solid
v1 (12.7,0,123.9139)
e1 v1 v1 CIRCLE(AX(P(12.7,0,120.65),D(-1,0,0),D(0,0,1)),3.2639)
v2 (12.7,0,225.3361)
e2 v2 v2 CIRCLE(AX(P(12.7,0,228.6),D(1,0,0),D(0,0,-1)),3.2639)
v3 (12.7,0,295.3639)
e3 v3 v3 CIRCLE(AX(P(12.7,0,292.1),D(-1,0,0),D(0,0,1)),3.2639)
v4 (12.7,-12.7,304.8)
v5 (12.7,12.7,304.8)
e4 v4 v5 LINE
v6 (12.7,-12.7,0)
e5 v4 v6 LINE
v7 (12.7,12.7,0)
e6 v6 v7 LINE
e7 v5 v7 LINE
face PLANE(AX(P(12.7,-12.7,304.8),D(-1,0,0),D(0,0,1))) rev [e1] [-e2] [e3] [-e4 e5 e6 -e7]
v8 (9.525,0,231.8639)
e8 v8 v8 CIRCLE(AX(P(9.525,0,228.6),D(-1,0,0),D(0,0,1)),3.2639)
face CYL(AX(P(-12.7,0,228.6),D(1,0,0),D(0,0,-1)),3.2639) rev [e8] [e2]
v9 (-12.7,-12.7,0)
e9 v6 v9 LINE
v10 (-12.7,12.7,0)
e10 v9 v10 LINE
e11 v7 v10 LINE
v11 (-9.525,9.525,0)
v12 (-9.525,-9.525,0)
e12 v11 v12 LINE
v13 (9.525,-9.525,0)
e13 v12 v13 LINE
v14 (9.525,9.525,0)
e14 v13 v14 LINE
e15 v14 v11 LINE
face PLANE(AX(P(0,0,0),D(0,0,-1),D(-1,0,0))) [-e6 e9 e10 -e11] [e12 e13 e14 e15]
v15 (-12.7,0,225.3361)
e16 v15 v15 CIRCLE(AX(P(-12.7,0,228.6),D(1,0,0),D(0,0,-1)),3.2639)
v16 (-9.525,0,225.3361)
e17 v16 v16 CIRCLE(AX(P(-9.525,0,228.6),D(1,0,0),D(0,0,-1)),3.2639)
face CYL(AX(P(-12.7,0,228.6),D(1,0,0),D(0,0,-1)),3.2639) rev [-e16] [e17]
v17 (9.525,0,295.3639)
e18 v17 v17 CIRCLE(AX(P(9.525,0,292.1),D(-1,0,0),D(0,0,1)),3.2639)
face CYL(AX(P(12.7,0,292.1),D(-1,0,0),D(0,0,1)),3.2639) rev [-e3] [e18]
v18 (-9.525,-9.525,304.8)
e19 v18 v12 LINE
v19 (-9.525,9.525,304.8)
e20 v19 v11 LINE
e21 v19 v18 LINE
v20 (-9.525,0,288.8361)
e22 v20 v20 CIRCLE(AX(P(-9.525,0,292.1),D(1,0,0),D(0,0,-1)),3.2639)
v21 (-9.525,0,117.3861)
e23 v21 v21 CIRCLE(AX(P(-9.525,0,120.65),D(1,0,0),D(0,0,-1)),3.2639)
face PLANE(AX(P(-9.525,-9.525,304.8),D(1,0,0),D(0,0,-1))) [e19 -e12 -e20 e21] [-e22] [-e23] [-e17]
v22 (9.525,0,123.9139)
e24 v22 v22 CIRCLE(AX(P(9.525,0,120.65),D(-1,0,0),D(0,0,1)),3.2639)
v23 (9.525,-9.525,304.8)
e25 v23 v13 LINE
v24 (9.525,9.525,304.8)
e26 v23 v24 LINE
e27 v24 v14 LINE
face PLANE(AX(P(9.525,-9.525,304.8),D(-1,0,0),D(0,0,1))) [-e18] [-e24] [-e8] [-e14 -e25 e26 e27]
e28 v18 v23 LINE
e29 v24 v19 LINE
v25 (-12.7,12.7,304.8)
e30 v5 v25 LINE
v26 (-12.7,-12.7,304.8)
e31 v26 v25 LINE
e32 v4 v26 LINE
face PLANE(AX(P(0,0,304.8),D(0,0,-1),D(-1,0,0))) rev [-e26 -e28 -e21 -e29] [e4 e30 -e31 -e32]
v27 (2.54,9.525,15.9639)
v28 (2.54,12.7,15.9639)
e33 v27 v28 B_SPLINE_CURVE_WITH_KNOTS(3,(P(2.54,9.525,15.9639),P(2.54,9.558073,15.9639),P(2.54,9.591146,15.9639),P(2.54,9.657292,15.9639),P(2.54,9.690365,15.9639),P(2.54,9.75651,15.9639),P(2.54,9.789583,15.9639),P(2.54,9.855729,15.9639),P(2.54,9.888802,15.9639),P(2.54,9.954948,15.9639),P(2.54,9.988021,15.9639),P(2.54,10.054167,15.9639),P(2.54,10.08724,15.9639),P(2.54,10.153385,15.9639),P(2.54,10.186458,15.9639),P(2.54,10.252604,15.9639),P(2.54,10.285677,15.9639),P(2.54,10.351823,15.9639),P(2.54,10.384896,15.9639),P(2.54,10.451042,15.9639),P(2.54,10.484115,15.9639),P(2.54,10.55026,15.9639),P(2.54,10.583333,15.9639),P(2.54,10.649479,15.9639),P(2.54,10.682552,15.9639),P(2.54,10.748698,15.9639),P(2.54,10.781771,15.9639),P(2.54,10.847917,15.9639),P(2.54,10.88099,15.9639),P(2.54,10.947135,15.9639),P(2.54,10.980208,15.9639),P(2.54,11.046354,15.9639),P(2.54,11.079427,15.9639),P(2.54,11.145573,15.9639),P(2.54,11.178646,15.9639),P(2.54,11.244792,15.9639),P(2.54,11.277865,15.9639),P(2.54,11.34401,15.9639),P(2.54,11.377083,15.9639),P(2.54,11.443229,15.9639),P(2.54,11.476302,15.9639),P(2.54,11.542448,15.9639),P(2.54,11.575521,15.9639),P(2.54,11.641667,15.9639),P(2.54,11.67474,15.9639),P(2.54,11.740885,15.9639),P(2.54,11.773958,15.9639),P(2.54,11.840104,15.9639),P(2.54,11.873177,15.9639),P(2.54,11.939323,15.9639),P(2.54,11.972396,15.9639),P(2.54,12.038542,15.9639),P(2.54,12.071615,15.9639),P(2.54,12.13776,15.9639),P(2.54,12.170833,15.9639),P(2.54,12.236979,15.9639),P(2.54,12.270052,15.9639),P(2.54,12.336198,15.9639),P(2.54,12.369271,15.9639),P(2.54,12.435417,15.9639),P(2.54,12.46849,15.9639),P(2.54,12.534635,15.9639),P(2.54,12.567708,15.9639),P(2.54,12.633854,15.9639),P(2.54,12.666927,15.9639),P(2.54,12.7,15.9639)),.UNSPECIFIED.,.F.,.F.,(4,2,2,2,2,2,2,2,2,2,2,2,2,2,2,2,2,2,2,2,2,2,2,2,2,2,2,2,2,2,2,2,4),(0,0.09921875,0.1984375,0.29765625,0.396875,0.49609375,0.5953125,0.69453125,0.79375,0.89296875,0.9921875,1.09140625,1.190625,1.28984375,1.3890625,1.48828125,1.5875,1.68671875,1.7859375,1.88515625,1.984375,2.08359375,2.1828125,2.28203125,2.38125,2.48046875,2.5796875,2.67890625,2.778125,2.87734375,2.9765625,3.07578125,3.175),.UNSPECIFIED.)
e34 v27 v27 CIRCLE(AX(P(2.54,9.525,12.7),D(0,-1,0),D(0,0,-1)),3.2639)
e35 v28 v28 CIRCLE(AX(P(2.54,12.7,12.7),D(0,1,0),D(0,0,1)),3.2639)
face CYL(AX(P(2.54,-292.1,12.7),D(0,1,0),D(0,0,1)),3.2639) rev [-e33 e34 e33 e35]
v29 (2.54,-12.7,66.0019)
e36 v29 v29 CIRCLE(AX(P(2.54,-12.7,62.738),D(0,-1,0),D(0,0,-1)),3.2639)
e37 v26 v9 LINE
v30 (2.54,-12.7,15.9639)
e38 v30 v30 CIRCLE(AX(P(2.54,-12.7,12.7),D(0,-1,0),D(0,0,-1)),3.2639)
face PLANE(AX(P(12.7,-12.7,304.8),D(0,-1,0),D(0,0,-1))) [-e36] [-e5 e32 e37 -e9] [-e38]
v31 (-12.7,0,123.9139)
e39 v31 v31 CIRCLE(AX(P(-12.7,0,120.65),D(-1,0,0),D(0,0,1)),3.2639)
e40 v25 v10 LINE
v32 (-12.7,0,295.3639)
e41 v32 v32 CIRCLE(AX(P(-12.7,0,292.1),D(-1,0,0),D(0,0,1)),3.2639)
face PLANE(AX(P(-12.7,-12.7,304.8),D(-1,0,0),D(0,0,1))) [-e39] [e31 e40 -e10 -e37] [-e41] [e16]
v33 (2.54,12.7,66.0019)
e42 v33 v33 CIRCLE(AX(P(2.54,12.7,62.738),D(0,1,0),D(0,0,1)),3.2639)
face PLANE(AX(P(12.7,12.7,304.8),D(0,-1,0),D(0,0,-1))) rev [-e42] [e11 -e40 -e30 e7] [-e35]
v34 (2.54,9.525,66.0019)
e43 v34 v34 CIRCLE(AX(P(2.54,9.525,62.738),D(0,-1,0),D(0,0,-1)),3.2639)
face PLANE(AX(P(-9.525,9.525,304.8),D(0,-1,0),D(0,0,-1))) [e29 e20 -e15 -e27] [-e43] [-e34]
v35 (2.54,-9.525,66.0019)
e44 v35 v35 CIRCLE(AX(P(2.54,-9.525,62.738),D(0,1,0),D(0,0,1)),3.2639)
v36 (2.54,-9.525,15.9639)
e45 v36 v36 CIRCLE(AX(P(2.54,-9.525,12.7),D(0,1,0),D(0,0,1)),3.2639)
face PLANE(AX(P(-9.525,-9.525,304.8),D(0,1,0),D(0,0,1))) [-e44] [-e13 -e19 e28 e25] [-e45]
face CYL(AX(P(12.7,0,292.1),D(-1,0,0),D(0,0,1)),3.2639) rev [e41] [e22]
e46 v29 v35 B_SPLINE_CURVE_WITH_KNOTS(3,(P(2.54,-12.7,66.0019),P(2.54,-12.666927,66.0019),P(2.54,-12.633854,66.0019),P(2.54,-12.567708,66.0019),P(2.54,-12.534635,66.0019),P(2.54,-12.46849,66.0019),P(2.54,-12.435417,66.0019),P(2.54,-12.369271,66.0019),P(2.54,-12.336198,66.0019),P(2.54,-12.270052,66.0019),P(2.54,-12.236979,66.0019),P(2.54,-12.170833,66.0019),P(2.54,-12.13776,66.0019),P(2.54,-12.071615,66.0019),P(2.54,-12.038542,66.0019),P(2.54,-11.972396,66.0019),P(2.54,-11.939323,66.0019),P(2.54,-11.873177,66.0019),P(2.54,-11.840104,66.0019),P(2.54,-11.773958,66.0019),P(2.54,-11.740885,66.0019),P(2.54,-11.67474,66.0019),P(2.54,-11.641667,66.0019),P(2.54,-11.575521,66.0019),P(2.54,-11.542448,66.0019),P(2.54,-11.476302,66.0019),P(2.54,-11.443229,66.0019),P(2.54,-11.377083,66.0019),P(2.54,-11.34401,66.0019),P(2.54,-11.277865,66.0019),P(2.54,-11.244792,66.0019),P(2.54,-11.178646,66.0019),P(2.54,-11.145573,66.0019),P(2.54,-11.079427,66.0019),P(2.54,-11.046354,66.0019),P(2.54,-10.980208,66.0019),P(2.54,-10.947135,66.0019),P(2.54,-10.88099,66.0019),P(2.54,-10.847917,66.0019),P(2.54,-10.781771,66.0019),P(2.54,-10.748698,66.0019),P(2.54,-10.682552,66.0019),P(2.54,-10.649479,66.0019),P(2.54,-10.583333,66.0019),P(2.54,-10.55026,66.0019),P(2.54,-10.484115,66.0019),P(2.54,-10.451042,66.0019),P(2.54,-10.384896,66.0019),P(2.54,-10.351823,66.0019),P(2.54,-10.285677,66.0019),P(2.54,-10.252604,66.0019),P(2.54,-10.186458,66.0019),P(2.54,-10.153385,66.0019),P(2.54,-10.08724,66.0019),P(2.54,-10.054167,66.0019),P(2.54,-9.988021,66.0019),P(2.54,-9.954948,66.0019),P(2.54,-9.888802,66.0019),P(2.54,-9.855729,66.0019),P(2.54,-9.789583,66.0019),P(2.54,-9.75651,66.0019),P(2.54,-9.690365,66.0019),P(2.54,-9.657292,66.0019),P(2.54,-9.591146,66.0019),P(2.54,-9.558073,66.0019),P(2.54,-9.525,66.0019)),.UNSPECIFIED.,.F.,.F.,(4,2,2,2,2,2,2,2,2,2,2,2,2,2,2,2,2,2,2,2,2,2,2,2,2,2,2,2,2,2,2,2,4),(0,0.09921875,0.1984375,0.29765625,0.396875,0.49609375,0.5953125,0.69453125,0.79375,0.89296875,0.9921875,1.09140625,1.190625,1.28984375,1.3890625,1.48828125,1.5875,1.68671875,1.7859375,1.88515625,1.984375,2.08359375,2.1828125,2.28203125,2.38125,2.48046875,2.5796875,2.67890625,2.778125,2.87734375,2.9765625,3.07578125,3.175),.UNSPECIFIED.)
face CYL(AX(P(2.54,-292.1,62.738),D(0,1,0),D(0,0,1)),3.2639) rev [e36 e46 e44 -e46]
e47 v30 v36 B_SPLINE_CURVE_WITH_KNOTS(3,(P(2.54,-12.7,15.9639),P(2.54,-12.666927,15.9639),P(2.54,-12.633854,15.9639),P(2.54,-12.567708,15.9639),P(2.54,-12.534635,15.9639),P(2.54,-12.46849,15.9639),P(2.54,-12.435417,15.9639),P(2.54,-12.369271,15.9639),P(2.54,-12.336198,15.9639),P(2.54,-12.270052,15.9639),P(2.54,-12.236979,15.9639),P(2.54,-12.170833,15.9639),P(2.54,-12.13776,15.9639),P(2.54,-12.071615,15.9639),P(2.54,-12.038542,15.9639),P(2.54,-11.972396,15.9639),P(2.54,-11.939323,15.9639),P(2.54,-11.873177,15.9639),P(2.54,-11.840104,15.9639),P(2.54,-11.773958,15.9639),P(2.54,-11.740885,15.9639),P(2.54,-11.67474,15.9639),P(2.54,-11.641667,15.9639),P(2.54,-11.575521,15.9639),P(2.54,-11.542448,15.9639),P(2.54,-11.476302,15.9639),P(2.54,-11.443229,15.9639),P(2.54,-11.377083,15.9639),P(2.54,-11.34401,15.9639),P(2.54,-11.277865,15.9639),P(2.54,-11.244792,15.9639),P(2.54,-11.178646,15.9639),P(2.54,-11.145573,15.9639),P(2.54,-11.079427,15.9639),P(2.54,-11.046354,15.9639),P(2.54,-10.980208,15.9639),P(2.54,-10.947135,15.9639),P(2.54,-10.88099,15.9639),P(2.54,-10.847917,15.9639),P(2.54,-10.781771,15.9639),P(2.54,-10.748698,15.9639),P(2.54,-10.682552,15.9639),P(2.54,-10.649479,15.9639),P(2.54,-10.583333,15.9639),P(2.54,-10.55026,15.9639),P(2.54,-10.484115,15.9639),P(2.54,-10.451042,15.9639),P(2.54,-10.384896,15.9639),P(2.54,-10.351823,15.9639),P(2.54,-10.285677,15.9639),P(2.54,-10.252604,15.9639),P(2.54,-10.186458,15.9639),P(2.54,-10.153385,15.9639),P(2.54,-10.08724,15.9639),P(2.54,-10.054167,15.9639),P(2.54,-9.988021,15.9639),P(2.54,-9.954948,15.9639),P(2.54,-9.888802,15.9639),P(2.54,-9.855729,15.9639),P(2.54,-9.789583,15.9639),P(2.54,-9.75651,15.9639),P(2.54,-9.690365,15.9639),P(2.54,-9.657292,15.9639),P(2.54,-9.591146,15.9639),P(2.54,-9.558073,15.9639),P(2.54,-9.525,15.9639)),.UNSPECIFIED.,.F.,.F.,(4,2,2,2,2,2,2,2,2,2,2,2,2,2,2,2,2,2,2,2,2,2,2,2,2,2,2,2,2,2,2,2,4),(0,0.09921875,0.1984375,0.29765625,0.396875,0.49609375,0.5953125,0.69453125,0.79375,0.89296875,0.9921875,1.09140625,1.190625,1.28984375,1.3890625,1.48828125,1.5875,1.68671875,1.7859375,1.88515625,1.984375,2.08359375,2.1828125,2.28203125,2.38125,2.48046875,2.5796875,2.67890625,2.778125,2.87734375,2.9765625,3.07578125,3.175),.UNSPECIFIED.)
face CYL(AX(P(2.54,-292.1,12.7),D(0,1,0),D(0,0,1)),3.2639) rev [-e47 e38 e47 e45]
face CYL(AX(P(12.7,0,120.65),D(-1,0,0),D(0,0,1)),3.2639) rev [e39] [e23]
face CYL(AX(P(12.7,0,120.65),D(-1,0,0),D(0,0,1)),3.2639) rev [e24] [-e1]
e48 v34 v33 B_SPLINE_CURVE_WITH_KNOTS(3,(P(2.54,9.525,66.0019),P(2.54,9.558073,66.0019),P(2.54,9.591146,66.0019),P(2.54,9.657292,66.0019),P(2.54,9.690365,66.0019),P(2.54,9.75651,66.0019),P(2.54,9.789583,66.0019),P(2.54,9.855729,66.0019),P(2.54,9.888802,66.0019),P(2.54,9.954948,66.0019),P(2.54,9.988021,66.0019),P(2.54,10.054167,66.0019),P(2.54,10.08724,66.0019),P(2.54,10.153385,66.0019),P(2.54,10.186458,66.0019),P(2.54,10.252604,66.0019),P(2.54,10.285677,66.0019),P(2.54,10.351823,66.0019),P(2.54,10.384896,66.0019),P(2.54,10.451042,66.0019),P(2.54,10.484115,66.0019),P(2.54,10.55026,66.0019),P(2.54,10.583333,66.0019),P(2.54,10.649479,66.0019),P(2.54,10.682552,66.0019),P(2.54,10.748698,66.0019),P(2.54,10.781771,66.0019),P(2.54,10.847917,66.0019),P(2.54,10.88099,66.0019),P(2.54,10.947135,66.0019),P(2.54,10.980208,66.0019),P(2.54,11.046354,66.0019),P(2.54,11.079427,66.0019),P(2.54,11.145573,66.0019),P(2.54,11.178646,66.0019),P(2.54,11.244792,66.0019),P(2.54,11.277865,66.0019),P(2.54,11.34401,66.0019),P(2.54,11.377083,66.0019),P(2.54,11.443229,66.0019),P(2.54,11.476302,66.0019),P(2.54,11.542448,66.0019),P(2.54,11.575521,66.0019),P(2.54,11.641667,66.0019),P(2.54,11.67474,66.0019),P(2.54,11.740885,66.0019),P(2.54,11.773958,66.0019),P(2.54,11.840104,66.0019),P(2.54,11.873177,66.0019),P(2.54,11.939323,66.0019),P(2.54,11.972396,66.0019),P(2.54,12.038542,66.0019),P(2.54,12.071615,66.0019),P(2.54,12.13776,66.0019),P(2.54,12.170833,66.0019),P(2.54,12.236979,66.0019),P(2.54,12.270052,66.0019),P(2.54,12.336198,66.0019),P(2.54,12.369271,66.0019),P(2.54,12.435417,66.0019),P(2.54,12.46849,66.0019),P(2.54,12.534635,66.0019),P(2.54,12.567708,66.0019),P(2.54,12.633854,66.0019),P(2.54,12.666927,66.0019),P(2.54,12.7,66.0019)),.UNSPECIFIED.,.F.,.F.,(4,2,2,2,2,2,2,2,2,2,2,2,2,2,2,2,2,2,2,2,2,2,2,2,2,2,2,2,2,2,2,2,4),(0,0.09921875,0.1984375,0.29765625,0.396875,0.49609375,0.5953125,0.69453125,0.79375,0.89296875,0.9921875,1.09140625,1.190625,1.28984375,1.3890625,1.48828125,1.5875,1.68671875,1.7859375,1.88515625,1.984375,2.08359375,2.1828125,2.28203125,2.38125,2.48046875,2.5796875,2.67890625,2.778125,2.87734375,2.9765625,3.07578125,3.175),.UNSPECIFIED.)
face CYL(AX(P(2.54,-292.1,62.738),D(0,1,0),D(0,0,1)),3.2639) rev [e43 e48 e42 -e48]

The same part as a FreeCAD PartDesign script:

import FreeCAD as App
import Part
import Sketcher
Q = App.Units.Quantity


def add_polygon(sketch, points):
    """Adds a closed chain of lines whose ends are joined by coincident constraints."""
    first, n = sketch.GeometryCount, len(points)
    for a, b in zip(points, points[1:] + points[:1]):
        sketch.addGeometry(Part.LineSegment(App.Vector(*a, 0), App.Vector(*b, 0)), False)
    for i in range(n):
        sketch.addConstraint(Sketcher.Constraint("Coincident", first + i, 2, first + (i + 1) % n, 1))

doc = App.newDocument("Part")
body = doc.addObject("PartDesign::Body", "Body")

sketch1 = body.newObject("Sketcher::SketchObject", "Sketch")
sketch1.AttachmentSupport = (doc.getObject("XY_Plane"), [""])
sketch1.MapMode = "FlatFace"
add_polygon(sketch1, [(-13, 13), (-13, -13), (13, -13), (13, 13)])
sketch1.addConstraint(Sketcher.Constraint("Vertical", 0))
sketch1.addConstraint(Sketcher.Constraint("Horizontal", 1))
sketch1.addConstraint(Sketcher.Constraint("Vertical", 2))
sketch1.addConstraint(Sketcher.Constraint("Horizontal", 3))
sketch1.addConstraint(Sketcher.Constraint("Symmetric", 0, 2, 2, 2, -1, 1))
sketch1.addConstraint(Sketcher.Constraint("Equal", 3, 0))
sketch1.addConstraint(Sketcher.Constraint("DistanceX", 1, 1, 1, 2, Q("1 in")))
pad1 = body.newObject("PartDesign::Pad", "Pad")
pad1.Profile = sketch1
pad1.Length = Q("12 in")

sketch2 = body.newObject("Sketcher::SketchObject", "Sketch001")
sketch2.AttachmentSupport = (doc.getObject("XY_Plane"), [""])
sketch2.MapMode = "FlatFace"
add_polygon(sketch2, [(-10, 10), (-10, -10), (10, -10), (10, 10)])
sketch2.addConstraint(Sketcher.Constraint("Vertical", 0))
sketch2.addConstraint(Sketcher.Constraint("Horizontal", 1))
sketch2.addConstraint(Sketcher.Constraint("Vertical", 2))
sketch2.addConstraint(Sketcher.Constraint("Horizontal", 3))
sketch2.addConstraint(Sketcher.Constraint("Symmetric", 0, 2, 2, 2, -1, 1))
sketch2.addConstraint(Sketcher.Constraint("Equal", 3, 0))
sketch2.addConstraint(Sketcher.Constraint("DistanceX", 1, 1, 1, 2, Q("0.75 in")))
pocket1 = body.newObject("PartDesign::Pocket", "Pocket")
pocket1.Profile = sketch2
pocket1.Type = "ThroughAll"
pocket1.Reversed = True

sketch3 = body.newObject("Sketcher::SketchObject", "Sketch002")
sketch3.AttachmentSupport = (doc.getObject("XZ_Plane"), [""])
sketch3.MapMode = "FlatFace"
sketch3.AttachmentOffset = App.Placement(App.Vector(0, 0, -0.5 * 25.4), App.Rotation())
sketch3.addGeometry(Part.Circle(App.Vector(2.5, 12.7, 0), App.Vector(0, 0, 1), 3.3), False)
sketch3.addConstraint(Sketcher.Constraint("Diameter", 0, Q("0.257 in")))
sketch3.addConstraint(Sketcher.Constraint("DistanceX", -1, 1, 0, 3, Q("0.1 in")))
sketch3.addConstraint(Sketcher.Constraint("DistanceY", -1, 1, 0, 3, Q("0.5 in")))
pocket2 = body.newObject("PartDesign::Pocket", "Pocket001")
pocket2.Profile = sketch3
pocket2.Length = Q("12 in")
pocket2.Reversed = True

sketch4 = body.newObject("Sketcher::SketchObject", "Sketch003")
sketch4.AttachmentSupport = (doc.getObject("XZ_Plane"), [""])
sketch4.MapMode = "FlatFace"
sketch4.AttachmentOffset = App.Placement(App.Vector(0, 0, -0.5 * 25.4), App.Rotation())
sketch4.addGeometry(Part.Circle(App.Vector(2.5, 62.7, 0), App.Vector(0, 0, 1), 3.3), False)
sketch4.addConstraint(Sketcher.Constraint("Diameter", 0, Q("0.257 in")))
sketch4.addConstraint(Sketcher.Constraint("DistanceX", -1, 1, 0, 3, Q("0.1 in")))
sketch4.addConstraint(Sketcher.Constraint("DistanceY", -1, 1, 0, 3, Q("2.47 in")))
pocket3 = body.newObject("PartDesign::Pocket", "Pocket002")
pocket3.Profile = sketch4
pocket3.Length = Q("12 in")
pocket3.Reversed = True

sketch5 = body.newObject("Sketcher::SketchObject", "Sketch004")
sketch5.AttachmentSupport = (doc.getObject("YZ_Plane"), [""])
sketch5.MapMode = "FlatFace"
sketch5.AttachmentOffset = App.Placement(App.Vector(0, 0, -0.5 * 25.4), App.Rotation())
sketch5.addGeometry(Part.Circle(App.Vector(0, 292.1, 0), App.Vector(0, 0, 1), 3.3), False)
sketch5.addConstraint(Sketcher.Constraint("PointOnObject", 0, 3, -2))
sketch5.addConstraint(Sketcher.Constraint("Diameter", 0, Q("0.257 in")))
sketch5.addConstraint(Sketcher.Constraint("DistanceY", -1, 1, 0, 3, Q("11.5 in")))
pocket4 = body.newObject("PartDesign::Pocket", "Pocket003")
pocket4.Profile = sketch5
pocket4.Type = "ThroughAll"
pocket4.Reversed = True

sketch6 = body.newObject("Sketcher::SketchObject", "Sketch005")
sketch6.AttachmentSupport = (doc.getObject("YZ_Plane"), [""])
sketch6.MapMode = "FlatFace"
sketch6.AttachmentOffset = App.Placement(App.Vector(0, 0, 0.5 * 25.4), App.Rotation())
sketch6.addGeometry(Part.Circle(App.Vector(0, 228.6, 0), App.Vector(0, 0, 1), 3.3), False)
sketch6.addConstraint(Sketcher.Constraint("PointOnObject", 0, 3, -2))
sketch6.addConstraint(Sketcher.Constraint("Diameter", 0, Q("0.257 in")))
sketch6.addConstraint(Sketcher.Constraint("DistanceY", -1, 1, 0, 3, Q("9 in")))
pocket5 = body.newObject("PartDesign::Pocket", "Pocket004")
pocket5.Profile = sketch6
pocket5.Type = "ThroughAll"

sketch7 = body.newObject("Sketcher::SketchObject", "Sketch006")
sketch7.AttachmentSupport = (doc.getObject("YZ_Plane"), [""])
sketch7.MapMode = "FlatFace"
sketch7.AttachmentOffset = App.Placement(App.Vector(0, 0, -0.5 * 25.4), App.Rotation())
sketch7.addGeometry(Part.Circle(App.Vector(0, 120.7, 0), App.Vector(0, 0, 1), 3.3), False)
sketch7.addConstraint(Sketcher.Constraint("PointOnObject", 0, 3, -2))
sketch7.addConstraint(Sketcher.Constraint("Diameter", 0, Q("0.257 in")))
sketch7.addConstraint(Sketcher.Constraint("DistanceY", -1, 1, 0, 3, Q("4.75 in")))
pocket6 = body.newObject("PartDesign::Pocket", "Pocket005")
pocket6.Profile = sketch7
pocket6.Type = "ThroughAll"
pocket6.Reversed = True

doc.recompute()
